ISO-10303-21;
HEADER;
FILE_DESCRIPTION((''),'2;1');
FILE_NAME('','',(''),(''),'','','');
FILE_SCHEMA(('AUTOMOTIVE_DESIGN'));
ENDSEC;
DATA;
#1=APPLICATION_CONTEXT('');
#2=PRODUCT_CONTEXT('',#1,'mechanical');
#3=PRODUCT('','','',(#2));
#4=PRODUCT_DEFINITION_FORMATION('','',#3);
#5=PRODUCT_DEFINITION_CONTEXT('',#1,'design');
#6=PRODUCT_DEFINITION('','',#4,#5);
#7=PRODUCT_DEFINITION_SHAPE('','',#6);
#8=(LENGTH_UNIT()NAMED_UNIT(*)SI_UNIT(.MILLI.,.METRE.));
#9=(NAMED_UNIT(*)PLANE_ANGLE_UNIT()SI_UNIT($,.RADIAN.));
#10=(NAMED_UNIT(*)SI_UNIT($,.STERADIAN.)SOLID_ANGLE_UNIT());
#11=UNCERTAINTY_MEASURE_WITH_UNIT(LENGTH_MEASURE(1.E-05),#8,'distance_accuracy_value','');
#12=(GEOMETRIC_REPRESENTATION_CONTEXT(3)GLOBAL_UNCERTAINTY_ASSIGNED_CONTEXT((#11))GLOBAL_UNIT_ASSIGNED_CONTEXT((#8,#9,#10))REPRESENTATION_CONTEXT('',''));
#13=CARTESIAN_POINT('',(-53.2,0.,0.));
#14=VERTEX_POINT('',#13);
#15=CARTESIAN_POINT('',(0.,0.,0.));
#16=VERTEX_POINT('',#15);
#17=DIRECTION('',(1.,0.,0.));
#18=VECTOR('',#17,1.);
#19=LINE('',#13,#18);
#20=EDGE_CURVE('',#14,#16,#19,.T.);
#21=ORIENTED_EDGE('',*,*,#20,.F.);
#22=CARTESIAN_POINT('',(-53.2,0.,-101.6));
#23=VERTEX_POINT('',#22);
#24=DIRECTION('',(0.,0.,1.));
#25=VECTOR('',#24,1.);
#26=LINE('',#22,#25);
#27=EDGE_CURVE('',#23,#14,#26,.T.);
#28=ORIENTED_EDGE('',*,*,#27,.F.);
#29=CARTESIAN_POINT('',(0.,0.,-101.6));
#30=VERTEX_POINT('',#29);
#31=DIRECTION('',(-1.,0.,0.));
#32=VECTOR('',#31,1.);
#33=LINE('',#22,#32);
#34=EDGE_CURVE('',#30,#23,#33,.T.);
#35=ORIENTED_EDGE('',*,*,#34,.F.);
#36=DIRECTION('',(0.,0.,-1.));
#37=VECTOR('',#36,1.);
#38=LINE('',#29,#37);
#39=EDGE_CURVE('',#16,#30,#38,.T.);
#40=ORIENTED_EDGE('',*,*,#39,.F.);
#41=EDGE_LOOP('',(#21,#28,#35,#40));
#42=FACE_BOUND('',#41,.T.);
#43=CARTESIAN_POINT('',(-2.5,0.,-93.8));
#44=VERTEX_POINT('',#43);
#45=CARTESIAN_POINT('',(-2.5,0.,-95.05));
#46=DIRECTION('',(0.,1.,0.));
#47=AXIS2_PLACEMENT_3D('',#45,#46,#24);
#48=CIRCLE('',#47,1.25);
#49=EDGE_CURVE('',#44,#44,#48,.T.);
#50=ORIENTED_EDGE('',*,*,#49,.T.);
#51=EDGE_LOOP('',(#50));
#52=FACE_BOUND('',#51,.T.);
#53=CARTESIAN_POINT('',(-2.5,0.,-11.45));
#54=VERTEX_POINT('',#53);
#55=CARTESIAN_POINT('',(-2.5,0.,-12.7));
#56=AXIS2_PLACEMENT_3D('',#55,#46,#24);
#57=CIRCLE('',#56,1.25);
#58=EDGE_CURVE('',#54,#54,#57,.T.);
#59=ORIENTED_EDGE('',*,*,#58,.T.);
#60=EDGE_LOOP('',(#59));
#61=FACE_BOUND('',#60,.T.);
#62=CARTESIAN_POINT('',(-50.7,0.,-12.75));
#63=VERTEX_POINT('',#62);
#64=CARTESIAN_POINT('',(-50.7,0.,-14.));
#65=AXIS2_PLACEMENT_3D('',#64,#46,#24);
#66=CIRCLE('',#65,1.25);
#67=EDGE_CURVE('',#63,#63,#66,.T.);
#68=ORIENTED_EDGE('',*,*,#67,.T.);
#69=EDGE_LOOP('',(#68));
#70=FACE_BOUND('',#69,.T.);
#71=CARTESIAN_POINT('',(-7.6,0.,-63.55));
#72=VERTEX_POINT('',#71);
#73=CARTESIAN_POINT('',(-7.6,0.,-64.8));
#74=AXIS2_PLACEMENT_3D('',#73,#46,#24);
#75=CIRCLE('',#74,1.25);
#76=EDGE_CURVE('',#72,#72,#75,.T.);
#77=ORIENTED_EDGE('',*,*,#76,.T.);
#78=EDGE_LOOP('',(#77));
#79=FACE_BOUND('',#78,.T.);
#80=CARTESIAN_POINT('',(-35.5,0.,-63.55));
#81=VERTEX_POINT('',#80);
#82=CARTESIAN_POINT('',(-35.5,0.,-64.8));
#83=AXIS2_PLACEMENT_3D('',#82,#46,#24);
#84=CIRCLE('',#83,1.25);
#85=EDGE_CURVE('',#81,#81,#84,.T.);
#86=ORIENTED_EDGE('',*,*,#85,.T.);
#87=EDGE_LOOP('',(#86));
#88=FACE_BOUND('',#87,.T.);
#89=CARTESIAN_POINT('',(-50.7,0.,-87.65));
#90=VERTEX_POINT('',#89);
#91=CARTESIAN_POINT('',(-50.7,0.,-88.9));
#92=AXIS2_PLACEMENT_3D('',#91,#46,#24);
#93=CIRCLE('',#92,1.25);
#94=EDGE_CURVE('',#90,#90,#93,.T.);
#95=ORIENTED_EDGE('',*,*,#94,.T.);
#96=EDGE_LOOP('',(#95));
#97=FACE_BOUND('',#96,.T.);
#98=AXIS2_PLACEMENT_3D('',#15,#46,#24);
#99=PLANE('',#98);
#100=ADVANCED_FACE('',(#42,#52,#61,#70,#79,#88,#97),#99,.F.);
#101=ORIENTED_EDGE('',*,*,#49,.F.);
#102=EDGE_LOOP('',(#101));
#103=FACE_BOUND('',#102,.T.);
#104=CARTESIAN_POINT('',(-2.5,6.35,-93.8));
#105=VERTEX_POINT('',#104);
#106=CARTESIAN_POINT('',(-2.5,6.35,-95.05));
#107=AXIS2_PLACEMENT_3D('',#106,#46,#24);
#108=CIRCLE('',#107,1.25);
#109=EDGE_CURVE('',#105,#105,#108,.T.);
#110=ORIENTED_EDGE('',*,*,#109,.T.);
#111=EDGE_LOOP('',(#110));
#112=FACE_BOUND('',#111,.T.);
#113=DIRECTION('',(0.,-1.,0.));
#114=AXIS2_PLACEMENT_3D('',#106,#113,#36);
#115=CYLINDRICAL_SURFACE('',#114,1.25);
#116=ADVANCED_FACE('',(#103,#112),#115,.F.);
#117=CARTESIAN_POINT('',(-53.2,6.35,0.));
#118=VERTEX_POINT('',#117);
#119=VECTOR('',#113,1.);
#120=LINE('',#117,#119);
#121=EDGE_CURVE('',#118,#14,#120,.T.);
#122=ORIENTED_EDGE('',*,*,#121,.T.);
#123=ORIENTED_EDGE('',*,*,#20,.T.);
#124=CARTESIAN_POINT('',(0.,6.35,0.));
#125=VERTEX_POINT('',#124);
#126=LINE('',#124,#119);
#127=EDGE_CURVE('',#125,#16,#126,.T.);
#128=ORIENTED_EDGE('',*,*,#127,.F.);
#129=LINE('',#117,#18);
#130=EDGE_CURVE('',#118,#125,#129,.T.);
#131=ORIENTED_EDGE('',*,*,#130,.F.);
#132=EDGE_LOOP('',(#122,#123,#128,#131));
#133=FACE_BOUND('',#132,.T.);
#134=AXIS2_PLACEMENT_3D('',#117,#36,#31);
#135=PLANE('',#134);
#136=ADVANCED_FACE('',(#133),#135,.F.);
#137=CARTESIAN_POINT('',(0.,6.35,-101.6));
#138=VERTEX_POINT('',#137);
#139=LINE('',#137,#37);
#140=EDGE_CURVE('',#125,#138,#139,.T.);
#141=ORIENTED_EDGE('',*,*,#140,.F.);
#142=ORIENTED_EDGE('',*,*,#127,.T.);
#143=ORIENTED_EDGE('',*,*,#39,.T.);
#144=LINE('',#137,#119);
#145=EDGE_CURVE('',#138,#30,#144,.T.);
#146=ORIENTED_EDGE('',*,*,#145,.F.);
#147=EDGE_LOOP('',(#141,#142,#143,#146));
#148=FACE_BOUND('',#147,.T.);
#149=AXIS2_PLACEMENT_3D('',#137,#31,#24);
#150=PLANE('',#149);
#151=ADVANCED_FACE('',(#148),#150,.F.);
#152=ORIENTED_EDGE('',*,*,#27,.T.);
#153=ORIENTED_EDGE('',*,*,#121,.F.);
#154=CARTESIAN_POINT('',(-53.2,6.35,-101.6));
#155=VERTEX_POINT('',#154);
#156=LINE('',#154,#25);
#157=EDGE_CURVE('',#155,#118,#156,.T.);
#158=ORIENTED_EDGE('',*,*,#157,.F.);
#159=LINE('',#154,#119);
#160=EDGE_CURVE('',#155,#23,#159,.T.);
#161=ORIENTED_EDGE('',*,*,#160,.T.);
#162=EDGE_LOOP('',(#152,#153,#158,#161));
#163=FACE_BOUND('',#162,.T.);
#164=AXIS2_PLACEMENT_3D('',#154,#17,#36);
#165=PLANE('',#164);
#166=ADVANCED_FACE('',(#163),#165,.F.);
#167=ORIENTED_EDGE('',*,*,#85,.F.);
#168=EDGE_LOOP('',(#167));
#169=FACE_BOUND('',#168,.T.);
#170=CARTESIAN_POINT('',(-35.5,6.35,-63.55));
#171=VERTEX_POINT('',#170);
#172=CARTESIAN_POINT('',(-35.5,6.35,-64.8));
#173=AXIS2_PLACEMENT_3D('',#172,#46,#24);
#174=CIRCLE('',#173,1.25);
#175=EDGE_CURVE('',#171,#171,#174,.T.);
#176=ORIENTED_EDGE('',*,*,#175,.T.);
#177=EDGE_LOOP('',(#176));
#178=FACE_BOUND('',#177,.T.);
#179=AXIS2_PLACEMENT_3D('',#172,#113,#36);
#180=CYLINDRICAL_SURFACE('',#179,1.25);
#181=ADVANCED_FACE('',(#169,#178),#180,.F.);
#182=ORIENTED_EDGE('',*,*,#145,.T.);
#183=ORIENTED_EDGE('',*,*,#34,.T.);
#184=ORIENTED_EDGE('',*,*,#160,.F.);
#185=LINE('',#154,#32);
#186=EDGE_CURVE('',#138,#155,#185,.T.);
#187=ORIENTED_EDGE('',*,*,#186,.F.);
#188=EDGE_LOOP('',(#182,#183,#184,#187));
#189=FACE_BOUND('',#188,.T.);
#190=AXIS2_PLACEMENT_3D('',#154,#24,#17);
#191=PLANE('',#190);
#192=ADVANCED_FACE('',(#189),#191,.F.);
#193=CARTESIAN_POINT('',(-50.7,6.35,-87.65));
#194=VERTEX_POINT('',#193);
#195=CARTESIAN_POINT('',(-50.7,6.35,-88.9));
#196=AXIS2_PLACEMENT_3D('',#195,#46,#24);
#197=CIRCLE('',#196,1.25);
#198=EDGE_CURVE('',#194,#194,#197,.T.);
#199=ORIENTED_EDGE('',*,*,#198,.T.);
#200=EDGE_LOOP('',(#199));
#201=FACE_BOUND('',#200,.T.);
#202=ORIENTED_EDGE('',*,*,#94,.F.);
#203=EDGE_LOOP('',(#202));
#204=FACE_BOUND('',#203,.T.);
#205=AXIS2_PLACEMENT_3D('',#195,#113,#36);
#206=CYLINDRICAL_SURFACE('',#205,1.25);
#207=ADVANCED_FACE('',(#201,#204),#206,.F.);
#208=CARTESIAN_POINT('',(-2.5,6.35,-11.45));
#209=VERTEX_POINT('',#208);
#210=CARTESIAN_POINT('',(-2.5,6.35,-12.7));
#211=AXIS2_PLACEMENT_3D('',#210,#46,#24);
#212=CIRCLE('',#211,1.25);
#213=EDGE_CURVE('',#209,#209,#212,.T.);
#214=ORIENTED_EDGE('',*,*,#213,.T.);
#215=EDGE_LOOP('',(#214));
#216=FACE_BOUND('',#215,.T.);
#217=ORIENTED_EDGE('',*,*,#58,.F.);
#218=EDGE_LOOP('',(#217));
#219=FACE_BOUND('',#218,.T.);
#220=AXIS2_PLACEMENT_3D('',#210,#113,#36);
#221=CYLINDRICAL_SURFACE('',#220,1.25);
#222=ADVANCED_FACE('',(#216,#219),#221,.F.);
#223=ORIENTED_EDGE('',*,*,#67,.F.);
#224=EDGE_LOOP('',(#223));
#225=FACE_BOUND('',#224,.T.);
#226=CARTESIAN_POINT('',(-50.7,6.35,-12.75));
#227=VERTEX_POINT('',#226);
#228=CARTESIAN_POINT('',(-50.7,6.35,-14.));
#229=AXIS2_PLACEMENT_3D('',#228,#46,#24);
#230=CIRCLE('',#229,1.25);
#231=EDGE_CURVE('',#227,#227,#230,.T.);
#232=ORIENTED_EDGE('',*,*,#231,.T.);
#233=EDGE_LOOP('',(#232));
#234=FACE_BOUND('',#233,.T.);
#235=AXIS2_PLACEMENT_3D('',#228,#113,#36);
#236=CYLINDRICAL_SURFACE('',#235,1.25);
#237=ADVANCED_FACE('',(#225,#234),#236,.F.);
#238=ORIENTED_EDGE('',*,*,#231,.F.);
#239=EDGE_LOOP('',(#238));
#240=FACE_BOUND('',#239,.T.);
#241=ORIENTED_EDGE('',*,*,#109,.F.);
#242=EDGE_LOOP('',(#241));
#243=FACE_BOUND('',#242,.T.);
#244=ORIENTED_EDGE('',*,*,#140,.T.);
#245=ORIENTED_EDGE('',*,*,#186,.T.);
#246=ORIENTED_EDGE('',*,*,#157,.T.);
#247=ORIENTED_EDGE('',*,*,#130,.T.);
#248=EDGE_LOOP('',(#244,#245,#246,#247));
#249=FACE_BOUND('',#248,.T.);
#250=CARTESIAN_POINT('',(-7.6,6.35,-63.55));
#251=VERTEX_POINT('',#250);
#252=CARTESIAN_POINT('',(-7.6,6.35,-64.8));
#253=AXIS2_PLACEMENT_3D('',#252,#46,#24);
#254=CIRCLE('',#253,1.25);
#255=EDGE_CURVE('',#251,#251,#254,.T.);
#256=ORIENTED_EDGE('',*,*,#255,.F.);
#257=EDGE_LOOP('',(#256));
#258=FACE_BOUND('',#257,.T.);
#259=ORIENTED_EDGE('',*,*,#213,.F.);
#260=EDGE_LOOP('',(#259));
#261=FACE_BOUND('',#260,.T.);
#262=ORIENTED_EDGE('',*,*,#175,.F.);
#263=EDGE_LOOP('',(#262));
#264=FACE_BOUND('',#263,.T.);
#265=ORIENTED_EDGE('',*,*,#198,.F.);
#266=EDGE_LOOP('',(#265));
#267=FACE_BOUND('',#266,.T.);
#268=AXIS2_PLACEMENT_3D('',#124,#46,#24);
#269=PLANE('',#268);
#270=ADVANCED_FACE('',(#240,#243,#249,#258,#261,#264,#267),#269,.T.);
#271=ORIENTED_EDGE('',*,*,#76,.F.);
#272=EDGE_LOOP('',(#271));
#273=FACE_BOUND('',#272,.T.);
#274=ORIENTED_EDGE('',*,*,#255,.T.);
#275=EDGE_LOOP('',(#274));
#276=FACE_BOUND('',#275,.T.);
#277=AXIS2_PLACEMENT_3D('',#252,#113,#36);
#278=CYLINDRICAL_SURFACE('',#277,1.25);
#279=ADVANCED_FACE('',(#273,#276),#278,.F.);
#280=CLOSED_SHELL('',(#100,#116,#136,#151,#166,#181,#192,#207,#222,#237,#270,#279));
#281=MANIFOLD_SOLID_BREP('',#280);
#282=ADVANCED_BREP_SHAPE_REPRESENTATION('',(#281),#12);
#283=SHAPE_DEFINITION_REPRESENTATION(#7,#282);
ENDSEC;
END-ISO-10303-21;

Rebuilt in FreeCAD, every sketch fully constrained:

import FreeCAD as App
import Part
import Sketcher

doc = App.newDocument("Part")
body = doc.addObject("PartDesign::Body", "Body")

# Sketch on XZ plane
sketch1 = doc.addObject("Sketcher::SketchObject", "Sketch")
body.addObject(sketch1)
sketch1.AttachmentSupport = (doc.XZ_Plane, [""])
sketch1.MapMode = "FlatFace"
sketch1.addGeometry([
    Part.LineSegment(App.Vector(-53.2, -101.6, 0), App.Vector(-53.2, 0, 0)),  # 0
    Part.LineSegment(App.Vector(-53.2, 0, 0), App.Vector(0, 0, 0)),  # 1
    Part.LineSegment(App.Vector(0, 0, 0), App.Vector(0, -101.6, 0)),  # 2
    Part.LineSegment(App.Vector(0, -101.6, 0), App.Vector(-53.2, -101.6, 0)),  # 3
    Part.Circle(App.Vector(-50.7, -14, 0), App.Vector(0, 0, 1), 1.25),  # 4
    Part.Circle(App.Vector(-2.5, -12.7, 0), App.Vector(0, 0, 1), 1.25),  # 5
    Part.Circle(App.Vector(-35.5, -64.8, 0), App.Vector(0, 0, 1), 1.25),  # 6
    Part.Circle(App.Vector(-50.7, -88.9, 0), App.Vector(0, 0, 1), 1.25),  # 7
    Part.Circle(App.Vector(-7.6, -64.8, 0), App.Vector(0, 0, 1), 1.25),  # 8
    Part.Circle(App.Vector(-2.5, -95.05, 0), App.Vector(0, 0, 1), 1.25),  # 9
], False)
sketch1.addConstraint([
    Sketcher.Constraint("Coincident", 0, 2, 1, 1),
    Sketcher.Constraint("Coincident", 1, 2, 2, 1),
    Sketcher.Constraint("Coincident", 2, 2, 3, 1),
    Sketcher.Constraint("Coincident", 3, 2, 0, 1),
    Sketcher.Constraint("Vertical", 0),
    Sketcher.Constraint("Horizontal", 1),
    Sketcher.Constraint("Vertical", 2),
    Sketcher.Constraint("Horizontal", 3),
    Sketcher.Constraint("Coincident", 1, 2, -1, 1),
    Sketcher.Constraint("Equal", 4, 5),
    Sketcher.Constraint("Equal", 5, 6),
    Sketcher.Constraint("Equal", 6, 7),
    Sketcher.Constraint("Equal", 7, 8),
    Sketcher.Constraint("Equal", 8, 9),
    Sketcher.Constraint("Horizontal", 6, 3, 8, 3),
    Sketcher.Constraint("Vertical", 4, 3, 7, 3),
    Sketcher.Constraint("Vertical", 5, 3, 9, 3),
    Sketcher.Constraint("Diameter", 4, 2.5),
    Sketcher.Constraint("DistanceX", 1, 1, 1, 2, 53.2),
    Sketcher.Constraint("DistanceY", 0, 1, 0, 2, 101.6),
    Sketcher.Constraint("DistanceY", 4, 3, -1, 1, 14.0),
    Sketcher.Constraint("DistanceX", 6, 3, 5, 3, 33.0),
    Sketcher.Constraint("DistanceX", 4, 3, -1, 1, 50.7),
    Sketcher.Constraint("DistanceX", 5, 3, -1, 1, 2.5),
    Sketcher.Constraint("DistanceY", 5, 3, -1, 1, 12.7),
    Sketcher.Constraint("DistanceY", 6, 3, -1, 1, 64.8),
    Sketcher.Constraint("DistanceY", 7, 3, -1, 1, 88.9),
    Sketcher.Constraint("DistanceX", 8, 3, -1, 1, 7.6),
    Sketcher.Constraint("DistanceY", 9, 3, -1, 1, 95.05),
])
pad1 = doc.addObject("PartDesign::Pad", "Pad")
body.addObject(pad1)
pad1.Profile = sketch1
pad1.Length = 6.35
pad1.Reversed = True

doc.recompute()
